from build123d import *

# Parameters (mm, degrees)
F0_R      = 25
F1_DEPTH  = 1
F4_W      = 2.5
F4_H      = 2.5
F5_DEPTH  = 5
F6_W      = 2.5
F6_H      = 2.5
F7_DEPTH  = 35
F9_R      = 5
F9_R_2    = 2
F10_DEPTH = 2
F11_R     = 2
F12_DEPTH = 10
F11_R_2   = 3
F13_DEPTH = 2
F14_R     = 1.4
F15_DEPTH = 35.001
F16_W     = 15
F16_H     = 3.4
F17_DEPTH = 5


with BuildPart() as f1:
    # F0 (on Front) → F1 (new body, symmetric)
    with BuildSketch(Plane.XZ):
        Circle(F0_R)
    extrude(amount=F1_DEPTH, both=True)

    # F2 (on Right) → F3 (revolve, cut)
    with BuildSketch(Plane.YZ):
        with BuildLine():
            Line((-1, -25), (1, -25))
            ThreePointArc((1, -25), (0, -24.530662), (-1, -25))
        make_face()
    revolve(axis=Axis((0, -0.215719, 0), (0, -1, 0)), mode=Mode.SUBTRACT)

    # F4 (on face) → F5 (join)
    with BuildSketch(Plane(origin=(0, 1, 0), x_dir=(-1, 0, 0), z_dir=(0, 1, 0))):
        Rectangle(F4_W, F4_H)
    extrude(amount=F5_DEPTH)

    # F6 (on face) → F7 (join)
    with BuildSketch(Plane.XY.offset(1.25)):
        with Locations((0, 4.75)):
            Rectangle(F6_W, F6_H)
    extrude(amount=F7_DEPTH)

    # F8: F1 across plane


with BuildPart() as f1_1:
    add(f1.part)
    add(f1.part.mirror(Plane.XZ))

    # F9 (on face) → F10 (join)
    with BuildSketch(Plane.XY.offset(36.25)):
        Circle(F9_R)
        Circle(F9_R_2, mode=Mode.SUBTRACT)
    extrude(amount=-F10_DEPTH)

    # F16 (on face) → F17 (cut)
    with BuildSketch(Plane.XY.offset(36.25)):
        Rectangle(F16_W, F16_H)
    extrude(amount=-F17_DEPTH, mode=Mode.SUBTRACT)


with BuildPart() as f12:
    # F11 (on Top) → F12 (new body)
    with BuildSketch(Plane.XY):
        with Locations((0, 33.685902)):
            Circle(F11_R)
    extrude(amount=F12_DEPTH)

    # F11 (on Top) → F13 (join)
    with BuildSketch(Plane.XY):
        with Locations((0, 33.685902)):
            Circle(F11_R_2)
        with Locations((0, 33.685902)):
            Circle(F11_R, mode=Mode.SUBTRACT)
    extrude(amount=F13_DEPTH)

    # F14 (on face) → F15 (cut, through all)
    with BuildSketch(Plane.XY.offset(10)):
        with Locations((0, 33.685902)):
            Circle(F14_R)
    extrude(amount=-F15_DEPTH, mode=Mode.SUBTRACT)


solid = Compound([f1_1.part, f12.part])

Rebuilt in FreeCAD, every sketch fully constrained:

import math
import FreeCAD as App
import Part
import Sketcher

V = App.Vector
Q = App.Units.Quantity

doc = App.newDocument("Part")
body = doc.addObject("PartDesign::Body", "Body")

# Sketch on XZ plane
sketch1 = body.newObject("Sketcher::SketchObject", "Sketch")
sketch1.AttachmentSupport = (doc.getObject("XZ_Plane"), [""])
sketch1.MapMode = "FlatFace"
sketch1.addGeometry(Part.Circle(V(0, 0, 0), V(0, 0, 1), 25), False)
sketch1.addConstraint(Sketcher.Constraint("Coincident", 0, 3, -1, 1))
sketch1.addConstraint(Sketcher.Constraint("Diameter", 0, Q("50 mm")))
pad1 = body.newObject("PartDesign::Pad", "Pad")
pad1.Profile = sketch1
pad1.Length = 2
pad1.Midplane = True

# Sketch on YZ plane
sketch2 = body.newObject("Sketcher::SketchObject", "Sketch001")
sketch2.AttachmentSupport = (doc.getObject("YZ_Plane"), [""])
sketch2.MapMode = "FlatFace"
sketch2.addGeometry(Part.LineSegment(V(-1, -25, 0), V(1, -25, 0)), False)
sketch2.addGeometry(Part.ArcOfCircle(Part.Circle(V(0, -25.830661, 0), V(0, 0, 1), 1.299999), math.radians(39.715101), math.radians(140.284899)), False)
sketch2.addConstraint(Sketcher.Constraint("Coincident", 0, 1, 1, 2))
sketch2.addConstraint(Sketcher.Constraint("Coincident", 1, 1, 0, 2))
sketch2.addConstraint(Sketcher.Constraint("Horizontal", 0))
sketch2.addConstraint(Sketcher.Constraint("PointOnObject", 1, 3, -2))
sketch2.addConstraint(Sketcher.Constraint("Radius", 1, Q("1.299999 mm")))
sketch2.addConstraint(Sketcher.Constraint("DistanceX", 0, 1, 0, 2, Q("2 mm")))
sketch2.addConstraint(Sketcher.Constraint("DistanceY", 0, 1, -1, 1, Q("25 mm")))
groove = body.newObject("PartDesign::Groove", "Groove")
groove.Profile = sketch2
groove.ReferenceAxis = (sketch2, ["H_Axis"])
groove.Angle = 360

# Sketch on XZ plane
sketch3 = body.newObject("Sketcher::SketchObject", "Sketch002")
sketch3.AttachmentSupport = (doc.getObject("XZ_Plane"), [""])
sketch3.MapMode = "FlatFace"
sketch3.AttachmentOffset = App.Placement(V(0, 0, -1), App.Rotation())
sketch3.addGeometry(Part.LineSegment(V(1.25, 1.25, 0), V(1.25, -1.25, 0)), False)
sketch3.addGeometry(Part.LineSegment(V(1.25, -1.25, 0), V(-1.25, -1.25, 0)), False)
sketch3.addGeometry(Part.LineSegment(V(-1.25, -1.25, 0), V(-1.25, 1.25, 0)), False)
sketch3.addGeometry(Part.LineSegment(V(-1.25, 1.25, 0), V(1.25, 1.25, 0)), False)
sketch3.addConstraint(Sketcher.Constraint("Coincident", 0, 2, 1, 1))
sketch3.addConstraint(Sketcher.Constraint("Coincident", 1, 2, 2, 1))
sketch3.addConstraint(Sketcher.Constraint("Coincident", 2, 2, 3, 1))
sketch3.addConstraint(Sketcher.Constraint("Coincident", 3, 2, 0, 1))
sketch3.addConstraint(Sketcher.Constraint("Vertical", 0))
sketch3.addConstraint(Sketcher.Constraint("Horizontal", 1))
sketch3.addConstraint(Sketcher.Constraint("Vertical", 2))
sketch3.addConstraint(Sketcher.Constraint("Horizontal", 3))
sketch3.addConstraint(Sketcher.Constraint("Symmetric", 0, 2, 2, 2, -1, 1))
sketch3.addConstraint(Sketcher.Constraint("Equal", 3, 0))
sketch3.addConstraint(Sketcher.Constraint("DistanceX", 1, 2, 1, 1, Q("2.5 mm")))
pad2 = body.newObject("PartDesign::Pad", "Pad001")
pad2.Profile = sketch3
pad2.Length = 5
pad2.Reversed = True

# Sketch on XY plane
sketch4 = body.newObject("Sketcher::SketchObject", "Sketch003")
sketch4.AttachmentSupport = (doc.getObject("XY_Plane"), [""])
sketch4.MapMode = "FlatFace"
sketch4.AttachmentOffset = App.Placement(V(0, 0, 1.25), App.Rotation())
sketch4.addGeometry(Part.LineSegment(V(-1.25, 6, 0), V(-1.25, 3.5, 0)), False)
sketch4.addGeometry(Part.LineSegment(V(-1.25, 3.5, 0), V(1.25, 3.5, 0)), False)
sketch4.addGeometry(Part.LineSegment(V(1.25, 3.5, 0), V(1.25, 6, 0)), False)
sketch4.addGeometry(Part.LineSegment(V(1.25, 6, 0), V(-1.25, 6, 0)), False)
sketch4.addConstraint(Sketcher.Constraint("Coincident", 0, 2, 1, 1))
sketch4.addConstraint(Sketcher.Constraint("Coincident", 1, 2, 2, 1))
sketch4.addConstraint(Sketcher.Constraint("Coincident", 2, 2, 3, 1))
sketch4.addConstraint(Sketcher.Constraint("Coincident", 3, 2, 0, 1))
sketch4.addConstraint(Sketcher.Constraint("Vertical", 0))
sketch4.addConstraint(Sketcher.Constraint("Horizontal", 1))
sketch4.addConstraint(Sketcher.Constraint("Vertical", 2))
sketch4.addConstraint(Sketcher.Constraint("Horizontal", 3))
sketch4.addConstraint(Sketcher.Constraint("Equal", 3, 0))
sketch4.addConstraint(Sketcher.Constraint("DistanceX", 1, 1, 1, 2, Q("2.5 mm")))
sketch4.addConstraint(Sketcher.Constraint("DistanceY", -1, 1, 2, 2, Q("6 mm")))
sketch4.addConstraint(Sketcher.Constraint("DistanceX", 0, 2, -1, 1, Q("1.25 mm")))
pad3 = body.newObject("PartDesign::Pad", "Pad002")
pad3.Profile = sketch4
pad3.Length = 35
body2 = doc.addObject("PartDesign::Body", "Body001")
doc.recompute()

body2.BaseFeature = body
doc.recompute()

mirroring = doc.addObject("Part::Mirroring", "Mirroring")
mirroring.Source = body
mirroring.Base = V(0, 0, 0)
mirroring.Normal = V(0, -1, 0)
body3 = doc.addObject("PartDesign::Body", "Body002")
body3.BaseFeature = mirroring
boolean = body2.newObject("PartDesign::Boolean", "Boolean")
boolean.Type = "Fuse"
boolean.addObjects([body3])
doc.recompute()

# Sketch on XY plane
sketch5 = body2.newObject("Sketcher::SketchObject", "Sketch004")
sketch5.AttachmentSupport = (doc.getObject("XY_Plane001"), [""])
sketch5.MapMode = "FlatFace"
sketch5.AttachmentOffset = App.Placement(V(0, 0, 36.25), App.Rotation())
sketch5.addGeometry(Part.Circle(V(0, 0, 0), V(0, 0, 1), 5), False)
sketch5.addGeometry(Part.Circle(V(0, 0, 0), V(0, 0, 1), 2), False)
sketch5.addConstraint(Sketcher.Constraint("Coincident", 0, 3, -1, 1))
sketch5.addConstraint(Sketcher.Constraint("Coincident", 1, 3, -1, 1))
sketch5.addConstraint(Sketcher.Constraint("Diameter", 0, Q("10 mm")))
sketch5.addConstraint(Sketcher.Constraint("Diameter", 1, Q("4 mm")))
pad4 = body2.newObject("PartDesign::Pad", "Pad003")
pad4.Profile = sketch5
pad4.Length = 2
pad4.Reversed = True

# Sketch on XY plane
sketch6 = body2.newObject("Sketcher::SketchObject", "Sketch005")
sketch6.AttachmentSupport = (doc.getObject("XY_Plane001"), [""])
sketch6.MapMode = "FlatFace"
sketch6.AttachmentOffset = App.Placement(V(0, 0, 36.25), App.Rotation())
sketch6.addGeometry(Part.LineSegment(V(-7.5, 1.7, 0), V(-7.5, -1.7, 0)), False)
sketch6.addGeometry(Part.LineSegment(V(-7.5, -1.7, 0), V(7.5, -1.7, 0)), False)
sketch6.addGeometry(Part.LineSegment(V(7.5, -1.7, 0), V(7.5, 1.7, 0)), False)
sketch6.addGeometry(Part.LineSegment(V(7.5, 1.7, 0), V(-7.5, 1.7, 0)), False)
sketch6.addConstraint(Sketcher.Constraint("Coincident", 0, 2, 1, 1))
sketch6.addConstraint(Sketcher.Constraint("Coincident", 1, 2, 2, 1))
sketch6.addConstraint(Sketcher.Constraint("Coincident", 2, 2, 3, 1))
sketch6.addConstraint(Sketcher.Constraint("Coincident", 3, 2, 0, 1))
sketch6.addConstraint(Sketcher.Constraint("Vertical", 0))
sketch6.addConstraint(Sketcher.Constraint("Horizontal", 1))
sketch6.addConstraint(Sketcher.Constraint("Vertical", 2))
sketch6.addConstraint(Sketcher.Constraint("Horizontal", 3))
sketch6.addConstraint(Sketcher.Constraint("Symmetric", 0, 2, 2, 2, -1, 1))
sketch6.addConstraint(Sketcher.Constraint("DistanceX", 1, 1, 1, 2, Q("15 mm")))
sketch6.addConstraint(Sketcher.Constraint("DistanceY", 0, 2, 0, 1, Q("3.4 mm")))
pocket1 = body2.newObject("PartDesign::Pocket", "Pocket")
pocket1.Profile = sketch6
pocket1.Length = 5
body4 = doc.addObject("PartDesign::Body", "Body003")

# Sketch on XY plane
sketch7 = body4.newObject("Sketcher::SketchObject", "Sketch006")
sketch7.AttachmentSupport = (doc.getObject("XY_Plane003"), [""])
sketch7.MapMode = "FlatFace"
sketch7.addGeometry(Part.Circle(V(0, 33.685902, 0), V(0, 0, 1), 2), False)
sketch7.addConstraint(Sketcher.Constraint("PointOnObject", 0, 3, -2))
sketch7.addConstraint(Sketcher.Constraint("Diameter", 0, Q("4 mm")))
sketch7.addConstraint(Sketcher.Constraint("DistanceY", -1, 1, 0, 3, Q("33.685902 mm")))
pad5 = body4.newObject("PartDesign::Pad", "Pad004")
pad5.Profile = sketch7
pad5.Length = 10

# Sketch on XY plane
sketch8 = body4.newObject("Sketcher::SketchObject", "Sketch007")
sketch8.AttachmentSupport = (doc.getObject("XY_Plane003"), [""])
sketch8.MapMode = "FlatFace"
sketch8.addGeometry(Part.Circle(V(0, 33.685902, 0), V(0, 0, 1), 3), False)
sketch8.addGeometry(Part.Circle(V(0, 33.685902, 0), V(0, 0, 1), 2), False)
sketch8.addConstraint(Sketcher.Constraint("Coincident", 1, 3, 0, 3))
sketch8.addConstraint(Sketcher.Constraint("PointOnObject", 0, 3, -2))
sketch8.addConstraint(Sketcher.Constraint("Diameter", 0, Q("6 mm")))
sketch8.addConstraint(Sketcher.Constraint("Diameter", 1, Q("4 mm")))
sketch8.addConstraint(Sketcher.Constraint("DistanceY", -1, 1, 0, 3, Q("33.685902 mm")))
pad6 = body4.newObject("PartDesign::Pad", "Pad005")
pad6.Profile = sketch8
pad6.Length = 2

# Sketch on XY plane
sketch9 = body4.newObject("Sketcher::SketchObject", "Sketch008")
sketch9.AttachmentSupport = (doc.getObject("XY_Plane003"), [""])
sketch9.MapMode = "FlatFace"
sketch9.AttachmentOffset = App.Placement(V(0, 0, 10), App.Rotation())
sketch9.addGeometry(Part.Circle(V(0, 33.685902, 0), V(0, 0, 1), 1.4), False)
sketch9.addConstraint(Sketcher.Constraint("PointOnObject", 0, 3, -2))
sketch9.addConstraint(Sketcher.Constraint("Diameter", 0, Q("2.8 mm")))
sketch9.addConstraint(Sketcher.Constraint("DistanceY", -1, 1, 0, 3, Q("33.685902 mm")))
pocket2 = body4.newObject("PartDesign::Pocket", "Pocket001")
pocket2.Profile = sketch9
pocket2.Type = "ThroughAll"
mirroring.Visibility = False

doc.recompute()
